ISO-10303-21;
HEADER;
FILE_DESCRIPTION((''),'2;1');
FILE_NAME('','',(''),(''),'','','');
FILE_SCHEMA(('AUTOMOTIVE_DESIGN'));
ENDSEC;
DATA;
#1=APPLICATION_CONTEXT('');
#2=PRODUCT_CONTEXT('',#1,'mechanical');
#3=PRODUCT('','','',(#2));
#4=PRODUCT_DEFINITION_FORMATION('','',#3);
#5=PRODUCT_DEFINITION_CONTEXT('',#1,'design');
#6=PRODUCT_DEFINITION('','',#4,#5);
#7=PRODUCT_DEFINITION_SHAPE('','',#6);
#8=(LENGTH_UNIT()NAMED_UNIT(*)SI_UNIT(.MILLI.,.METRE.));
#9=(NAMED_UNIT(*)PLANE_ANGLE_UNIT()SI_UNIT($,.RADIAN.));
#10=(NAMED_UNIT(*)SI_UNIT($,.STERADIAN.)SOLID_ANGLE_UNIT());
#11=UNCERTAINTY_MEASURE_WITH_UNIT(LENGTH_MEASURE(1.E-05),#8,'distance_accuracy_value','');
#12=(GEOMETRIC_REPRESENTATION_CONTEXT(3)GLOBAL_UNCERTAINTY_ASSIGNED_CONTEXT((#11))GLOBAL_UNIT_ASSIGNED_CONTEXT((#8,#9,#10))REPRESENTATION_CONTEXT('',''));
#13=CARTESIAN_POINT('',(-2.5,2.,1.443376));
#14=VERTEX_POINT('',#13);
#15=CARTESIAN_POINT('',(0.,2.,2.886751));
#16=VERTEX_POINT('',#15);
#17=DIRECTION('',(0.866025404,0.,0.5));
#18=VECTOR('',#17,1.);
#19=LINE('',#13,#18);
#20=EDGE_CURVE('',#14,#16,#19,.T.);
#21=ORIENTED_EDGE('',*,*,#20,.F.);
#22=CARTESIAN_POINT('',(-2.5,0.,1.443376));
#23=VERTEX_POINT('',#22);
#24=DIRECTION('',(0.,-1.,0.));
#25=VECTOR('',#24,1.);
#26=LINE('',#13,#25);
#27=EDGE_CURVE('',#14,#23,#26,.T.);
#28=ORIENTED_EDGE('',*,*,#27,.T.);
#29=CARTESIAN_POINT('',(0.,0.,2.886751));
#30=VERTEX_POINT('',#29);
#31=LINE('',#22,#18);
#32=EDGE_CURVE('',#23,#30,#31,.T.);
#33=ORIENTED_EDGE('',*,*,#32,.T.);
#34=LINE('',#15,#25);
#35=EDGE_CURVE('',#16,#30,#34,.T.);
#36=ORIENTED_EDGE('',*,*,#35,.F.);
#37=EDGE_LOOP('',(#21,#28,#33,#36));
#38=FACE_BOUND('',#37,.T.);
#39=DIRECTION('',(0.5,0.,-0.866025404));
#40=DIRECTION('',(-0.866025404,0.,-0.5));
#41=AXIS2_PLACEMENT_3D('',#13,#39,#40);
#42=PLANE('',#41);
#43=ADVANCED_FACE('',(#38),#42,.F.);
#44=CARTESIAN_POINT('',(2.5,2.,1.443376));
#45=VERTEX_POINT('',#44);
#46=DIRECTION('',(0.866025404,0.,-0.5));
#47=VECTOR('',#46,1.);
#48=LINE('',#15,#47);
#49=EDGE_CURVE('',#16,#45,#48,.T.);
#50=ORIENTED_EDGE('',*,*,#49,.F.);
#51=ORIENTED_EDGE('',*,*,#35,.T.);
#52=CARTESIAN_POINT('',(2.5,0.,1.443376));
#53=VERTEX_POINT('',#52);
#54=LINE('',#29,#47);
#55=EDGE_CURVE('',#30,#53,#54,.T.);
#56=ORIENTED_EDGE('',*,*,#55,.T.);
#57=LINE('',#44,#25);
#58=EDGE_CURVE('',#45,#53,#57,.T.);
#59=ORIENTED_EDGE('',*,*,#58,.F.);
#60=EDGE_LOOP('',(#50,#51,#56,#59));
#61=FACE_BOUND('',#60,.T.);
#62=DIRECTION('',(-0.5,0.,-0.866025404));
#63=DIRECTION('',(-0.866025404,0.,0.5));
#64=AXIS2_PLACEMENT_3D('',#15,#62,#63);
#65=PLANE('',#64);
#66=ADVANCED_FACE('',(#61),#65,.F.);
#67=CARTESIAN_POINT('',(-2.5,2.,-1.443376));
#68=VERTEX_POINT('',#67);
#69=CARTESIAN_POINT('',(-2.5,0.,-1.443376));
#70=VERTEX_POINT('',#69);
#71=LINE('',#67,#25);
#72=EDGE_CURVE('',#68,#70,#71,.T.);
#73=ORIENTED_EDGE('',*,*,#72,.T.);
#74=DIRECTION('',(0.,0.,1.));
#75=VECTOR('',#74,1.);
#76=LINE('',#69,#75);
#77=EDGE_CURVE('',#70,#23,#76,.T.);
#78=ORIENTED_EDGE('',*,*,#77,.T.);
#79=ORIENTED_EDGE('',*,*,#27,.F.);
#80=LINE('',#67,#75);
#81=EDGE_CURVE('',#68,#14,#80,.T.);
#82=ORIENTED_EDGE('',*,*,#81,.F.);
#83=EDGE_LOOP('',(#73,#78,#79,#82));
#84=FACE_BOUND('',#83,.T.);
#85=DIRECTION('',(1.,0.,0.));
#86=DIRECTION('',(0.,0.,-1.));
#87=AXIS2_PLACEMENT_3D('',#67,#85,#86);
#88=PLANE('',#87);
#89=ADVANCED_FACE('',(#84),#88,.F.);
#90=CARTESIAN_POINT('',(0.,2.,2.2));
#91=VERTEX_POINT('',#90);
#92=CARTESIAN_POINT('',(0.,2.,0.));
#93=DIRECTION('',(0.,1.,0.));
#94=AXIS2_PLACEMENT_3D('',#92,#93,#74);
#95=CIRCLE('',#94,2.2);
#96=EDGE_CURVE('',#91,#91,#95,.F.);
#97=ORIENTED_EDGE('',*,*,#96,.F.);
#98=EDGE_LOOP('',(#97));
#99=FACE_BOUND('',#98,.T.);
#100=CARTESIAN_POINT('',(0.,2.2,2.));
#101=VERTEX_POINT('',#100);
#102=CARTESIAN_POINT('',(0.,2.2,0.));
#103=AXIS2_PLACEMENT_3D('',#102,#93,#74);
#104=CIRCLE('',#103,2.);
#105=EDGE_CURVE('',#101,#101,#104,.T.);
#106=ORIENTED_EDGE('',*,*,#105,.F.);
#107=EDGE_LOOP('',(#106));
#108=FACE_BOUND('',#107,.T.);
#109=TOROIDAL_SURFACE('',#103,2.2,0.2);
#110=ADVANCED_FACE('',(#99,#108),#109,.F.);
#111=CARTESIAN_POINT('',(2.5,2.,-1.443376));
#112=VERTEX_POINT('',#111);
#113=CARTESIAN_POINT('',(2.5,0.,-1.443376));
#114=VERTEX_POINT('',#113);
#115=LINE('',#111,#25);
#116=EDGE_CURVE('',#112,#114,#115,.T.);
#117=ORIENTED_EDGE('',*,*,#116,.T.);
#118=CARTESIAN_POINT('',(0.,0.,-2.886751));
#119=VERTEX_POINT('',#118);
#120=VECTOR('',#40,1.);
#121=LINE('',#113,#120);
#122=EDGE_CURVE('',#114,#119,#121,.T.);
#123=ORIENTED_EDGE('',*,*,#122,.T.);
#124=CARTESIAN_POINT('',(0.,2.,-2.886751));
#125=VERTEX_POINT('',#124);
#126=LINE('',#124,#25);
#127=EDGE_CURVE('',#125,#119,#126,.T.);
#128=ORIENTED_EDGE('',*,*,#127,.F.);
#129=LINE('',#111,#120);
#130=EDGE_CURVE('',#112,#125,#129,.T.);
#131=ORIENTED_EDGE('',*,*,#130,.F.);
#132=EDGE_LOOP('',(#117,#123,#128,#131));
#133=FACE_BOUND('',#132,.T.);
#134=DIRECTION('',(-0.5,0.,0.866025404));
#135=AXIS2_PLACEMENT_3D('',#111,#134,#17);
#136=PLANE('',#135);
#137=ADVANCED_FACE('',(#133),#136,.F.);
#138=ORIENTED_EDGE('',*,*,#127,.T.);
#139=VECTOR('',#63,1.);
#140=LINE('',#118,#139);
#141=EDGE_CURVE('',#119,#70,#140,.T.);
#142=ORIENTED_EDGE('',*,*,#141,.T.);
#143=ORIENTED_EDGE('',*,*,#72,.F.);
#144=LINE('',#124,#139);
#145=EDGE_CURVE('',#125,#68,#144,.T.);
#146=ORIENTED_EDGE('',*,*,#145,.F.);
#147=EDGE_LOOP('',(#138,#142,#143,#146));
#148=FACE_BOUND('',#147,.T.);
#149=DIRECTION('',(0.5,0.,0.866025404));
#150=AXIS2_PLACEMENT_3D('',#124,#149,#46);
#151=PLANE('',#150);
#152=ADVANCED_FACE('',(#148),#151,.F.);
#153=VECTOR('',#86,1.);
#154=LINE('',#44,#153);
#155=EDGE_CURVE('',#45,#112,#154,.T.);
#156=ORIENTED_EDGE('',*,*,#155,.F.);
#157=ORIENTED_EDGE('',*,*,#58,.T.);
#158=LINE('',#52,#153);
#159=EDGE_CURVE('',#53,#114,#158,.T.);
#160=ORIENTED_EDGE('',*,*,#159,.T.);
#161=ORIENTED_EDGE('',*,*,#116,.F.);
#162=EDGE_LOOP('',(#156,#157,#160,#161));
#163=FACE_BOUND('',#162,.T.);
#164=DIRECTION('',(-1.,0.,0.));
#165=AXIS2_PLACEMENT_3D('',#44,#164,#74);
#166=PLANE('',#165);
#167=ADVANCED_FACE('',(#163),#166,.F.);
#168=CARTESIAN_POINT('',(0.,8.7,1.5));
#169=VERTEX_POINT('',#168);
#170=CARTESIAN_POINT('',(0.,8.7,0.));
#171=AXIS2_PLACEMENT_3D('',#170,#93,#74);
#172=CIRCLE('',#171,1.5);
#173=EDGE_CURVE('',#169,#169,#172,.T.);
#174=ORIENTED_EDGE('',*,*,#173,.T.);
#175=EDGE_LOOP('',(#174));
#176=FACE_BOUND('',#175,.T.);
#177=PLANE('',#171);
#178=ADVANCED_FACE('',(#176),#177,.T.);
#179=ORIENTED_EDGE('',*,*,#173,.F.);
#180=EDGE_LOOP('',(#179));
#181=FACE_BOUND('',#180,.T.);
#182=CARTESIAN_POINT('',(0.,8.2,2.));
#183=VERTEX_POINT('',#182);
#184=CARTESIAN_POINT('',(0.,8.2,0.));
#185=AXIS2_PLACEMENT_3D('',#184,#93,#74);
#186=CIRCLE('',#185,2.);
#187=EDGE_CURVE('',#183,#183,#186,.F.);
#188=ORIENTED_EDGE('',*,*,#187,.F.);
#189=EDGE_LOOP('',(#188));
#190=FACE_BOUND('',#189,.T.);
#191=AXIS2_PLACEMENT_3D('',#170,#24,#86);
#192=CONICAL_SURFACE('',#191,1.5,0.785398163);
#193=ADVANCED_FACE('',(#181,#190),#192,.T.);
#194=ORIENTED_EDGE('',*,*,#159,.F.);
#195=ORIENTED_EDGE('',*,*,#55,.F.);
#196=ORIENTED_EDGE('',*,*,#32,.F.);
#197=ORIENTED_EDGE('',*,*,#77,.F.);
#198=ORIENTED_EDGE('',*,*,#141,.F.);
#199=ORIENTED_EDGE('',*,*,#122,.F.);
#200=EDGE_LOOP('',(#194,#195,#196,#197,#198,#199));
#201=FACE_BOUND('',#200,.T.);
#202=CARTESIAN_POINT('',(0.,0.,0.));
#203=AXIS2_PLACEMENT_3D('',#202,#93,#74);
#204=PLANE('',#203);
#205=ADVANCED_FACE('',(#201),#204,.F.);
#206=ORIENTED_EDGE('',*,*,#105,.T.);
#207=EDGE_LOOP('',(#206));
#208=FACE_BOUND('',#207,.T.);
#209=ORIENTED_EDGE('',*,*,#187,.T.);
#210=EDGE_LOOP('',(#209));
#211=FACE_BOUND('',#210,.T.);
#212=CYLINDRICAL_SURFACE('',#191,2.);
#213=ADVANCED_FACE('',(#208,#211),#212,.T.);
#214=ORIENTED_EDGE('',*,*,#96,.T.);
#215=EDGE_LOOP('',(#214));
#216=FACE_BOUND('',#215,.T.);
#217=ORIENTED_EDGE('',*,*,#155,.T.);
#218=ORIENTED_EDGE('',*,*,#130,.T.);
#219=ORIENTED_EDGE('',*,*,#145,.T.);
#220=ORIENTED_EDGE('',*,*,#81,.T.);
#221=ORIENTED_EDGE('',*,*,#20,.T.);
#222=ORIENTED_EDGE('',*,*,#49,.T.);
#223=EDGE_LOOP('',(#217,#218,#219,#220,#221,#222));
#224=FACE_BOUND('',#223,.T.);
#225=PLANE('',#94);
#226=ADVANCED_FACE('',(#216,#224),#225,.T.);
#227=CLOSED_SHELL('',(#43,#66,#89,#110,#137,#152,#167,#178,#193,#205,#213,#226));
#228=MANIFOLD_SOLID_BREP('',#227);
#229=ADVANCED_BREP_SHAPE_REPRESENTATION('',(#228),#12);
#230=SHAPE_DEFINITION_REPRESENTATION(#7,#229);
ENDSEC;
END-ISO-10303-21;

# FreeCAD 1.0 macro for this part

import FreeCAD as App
import Part
import Sketcher
from FreeCAD import Vector
Q = App.Units.Quantity


def edges_at(feature, points):
    """Names of the edges that pass closest to the given points."""
    edges = feature.Shape.Edges
    near = lambda p: min(range(len(edges)), key=lambda i: edges[i].distToShape(Part.Vertex(*p))[0])
    return sorted({f"Edge{near(p) + 1}" for p in points})

doc = App.newDocument("Part")
body = doc.addObject("PartDesign::Body", "Body")

# Sketch on XZ plane
sketch1 = doc.addObject("Sketcher::SketchObject", "Sketch")
body.addObject(sketch1)
sketch1.AttachmentSupport = (doc.XZ_Plane, [""])
sketch1.MapMode = "FlatFace"
sketch1.addGeometry([
    Part.LineSegment(Vector(0, -2.9, 0), Vector(-2.5, -1.4, 0)),  # 0
    Part.LineSegment(Vector(-2.5, -1.4, 0), Vector(-2.5, 1.4, 0)),  # 1
    Part.LineSegment(Vector(-2.5, 1.4, 0), Vector(0, 2.9, 0)),  # 2
    Part.LineSegment(Vector(0, 2.9, 0), Vector(2.5, 1.4, 0)),  # 3
    Part.LineSegment(Vector(2.5, 1.4, 0), Vector(2.5, -1.4, 0)),  # 4
    Part.LineSegment(Vector(2.5, -1.4, 0), Vector(0, -2.9, 0)),  # 5
], False)
sketch1.addConstraint([
    Sketcher.Constraint("Coincident", 0, 2, 1, 1),
    Sketcher.Constraint("Coincident", 1, 2, 2, 1),
    Sketcher.Constraint("Coincident", 2, 2, 3, 1),
    Sketcher.Constraint("Coincident", 3, 2, 4, 1),
    Sketcher.Constraint("Coincident", 4, 2, 5, 1),
    Sketcher.Constraint("Coincident", 5, 2, 0, 1),
    Sketcher.Constraint("Vertical", 1),
    Sketcher.Constraint("Vertical", 4),
    Sketcher.Constraint("Symmetric", 0, 2, 3, 2, -1, 1),
    Sketcher.Constraint("Symmetric", 2, 2, 5, 2, -1, 1),
    Sketcher.Constraint("PointOnObject", 2, 2, -2),
    Sketcher.Constraint("Parallel", 2, 5),
    Sketcher.Constraint("Horizontal", 1, 2, 3, 2),
    Sketcher.Constraint("Angle", 0, Q("150 deg")),
    Sketcher.Constraint("DistanceX", 1, 2, 3, 2, Q("5 mm")),
    Sketcher.Constraint("DistanceY", 1, 1, 1, 2, Q("2.886751 mm")),
])
pad1 = doc.addObject("PartDesign::Pad", "Pad")
body.addObject(pad1)
pad1.Profile = sketch1
pad1.Length = 2
pad1.Reversed = True

# Sketch on XZ plane
sketch2 = doc.addObject("Sketcher::SketchObject", "Sketch001")
body.addObject(sketch2)
sketch2.AttachmentSupport = (doc.XZ_Plane, [""])
sketch2.MapMode = "FlatFace"
sketch2.AttachmentOffset = App.Placement(Vector(0, 0, -2), App.Rotation())
sketch2.addGeometry(Part.Circle(Vector(0, 0, 0), Vector(0, 0, 1), 2), False)
sketch2.addConstraint([
    Sketcher.Constraint("Coincident", 0, 3, -1, 1),
    Sketcher.Constraint("Diameter", 0, Q("4 mm")),
])
pad2 = doc.addObject("PartDesign::Pad", "Pad001")
body.addObject(pad2)
pad2.Profile = sketch2
pad2.Length = 6.7
pad2.Reversed = True
doc.recompute()

chamfer = doc.addObject("PartDesign::Chamfer", "Chamfer")
body.addObject(chamfer)
chamfer.Base = (pad2, edges_at(pad2, [(-2, 8.7, 0)]))
chamfer.Size = 0.5
doc.recompute()

fillet = doc.addObject("PartDesign::Fillet", "Fillet")
body.addObject(fillet)
fillet.Base = (chamfer, edges_at(chamfer, [(-2, 2, 0)]))
fillet.Radius = 0.2

doc.recompute()
